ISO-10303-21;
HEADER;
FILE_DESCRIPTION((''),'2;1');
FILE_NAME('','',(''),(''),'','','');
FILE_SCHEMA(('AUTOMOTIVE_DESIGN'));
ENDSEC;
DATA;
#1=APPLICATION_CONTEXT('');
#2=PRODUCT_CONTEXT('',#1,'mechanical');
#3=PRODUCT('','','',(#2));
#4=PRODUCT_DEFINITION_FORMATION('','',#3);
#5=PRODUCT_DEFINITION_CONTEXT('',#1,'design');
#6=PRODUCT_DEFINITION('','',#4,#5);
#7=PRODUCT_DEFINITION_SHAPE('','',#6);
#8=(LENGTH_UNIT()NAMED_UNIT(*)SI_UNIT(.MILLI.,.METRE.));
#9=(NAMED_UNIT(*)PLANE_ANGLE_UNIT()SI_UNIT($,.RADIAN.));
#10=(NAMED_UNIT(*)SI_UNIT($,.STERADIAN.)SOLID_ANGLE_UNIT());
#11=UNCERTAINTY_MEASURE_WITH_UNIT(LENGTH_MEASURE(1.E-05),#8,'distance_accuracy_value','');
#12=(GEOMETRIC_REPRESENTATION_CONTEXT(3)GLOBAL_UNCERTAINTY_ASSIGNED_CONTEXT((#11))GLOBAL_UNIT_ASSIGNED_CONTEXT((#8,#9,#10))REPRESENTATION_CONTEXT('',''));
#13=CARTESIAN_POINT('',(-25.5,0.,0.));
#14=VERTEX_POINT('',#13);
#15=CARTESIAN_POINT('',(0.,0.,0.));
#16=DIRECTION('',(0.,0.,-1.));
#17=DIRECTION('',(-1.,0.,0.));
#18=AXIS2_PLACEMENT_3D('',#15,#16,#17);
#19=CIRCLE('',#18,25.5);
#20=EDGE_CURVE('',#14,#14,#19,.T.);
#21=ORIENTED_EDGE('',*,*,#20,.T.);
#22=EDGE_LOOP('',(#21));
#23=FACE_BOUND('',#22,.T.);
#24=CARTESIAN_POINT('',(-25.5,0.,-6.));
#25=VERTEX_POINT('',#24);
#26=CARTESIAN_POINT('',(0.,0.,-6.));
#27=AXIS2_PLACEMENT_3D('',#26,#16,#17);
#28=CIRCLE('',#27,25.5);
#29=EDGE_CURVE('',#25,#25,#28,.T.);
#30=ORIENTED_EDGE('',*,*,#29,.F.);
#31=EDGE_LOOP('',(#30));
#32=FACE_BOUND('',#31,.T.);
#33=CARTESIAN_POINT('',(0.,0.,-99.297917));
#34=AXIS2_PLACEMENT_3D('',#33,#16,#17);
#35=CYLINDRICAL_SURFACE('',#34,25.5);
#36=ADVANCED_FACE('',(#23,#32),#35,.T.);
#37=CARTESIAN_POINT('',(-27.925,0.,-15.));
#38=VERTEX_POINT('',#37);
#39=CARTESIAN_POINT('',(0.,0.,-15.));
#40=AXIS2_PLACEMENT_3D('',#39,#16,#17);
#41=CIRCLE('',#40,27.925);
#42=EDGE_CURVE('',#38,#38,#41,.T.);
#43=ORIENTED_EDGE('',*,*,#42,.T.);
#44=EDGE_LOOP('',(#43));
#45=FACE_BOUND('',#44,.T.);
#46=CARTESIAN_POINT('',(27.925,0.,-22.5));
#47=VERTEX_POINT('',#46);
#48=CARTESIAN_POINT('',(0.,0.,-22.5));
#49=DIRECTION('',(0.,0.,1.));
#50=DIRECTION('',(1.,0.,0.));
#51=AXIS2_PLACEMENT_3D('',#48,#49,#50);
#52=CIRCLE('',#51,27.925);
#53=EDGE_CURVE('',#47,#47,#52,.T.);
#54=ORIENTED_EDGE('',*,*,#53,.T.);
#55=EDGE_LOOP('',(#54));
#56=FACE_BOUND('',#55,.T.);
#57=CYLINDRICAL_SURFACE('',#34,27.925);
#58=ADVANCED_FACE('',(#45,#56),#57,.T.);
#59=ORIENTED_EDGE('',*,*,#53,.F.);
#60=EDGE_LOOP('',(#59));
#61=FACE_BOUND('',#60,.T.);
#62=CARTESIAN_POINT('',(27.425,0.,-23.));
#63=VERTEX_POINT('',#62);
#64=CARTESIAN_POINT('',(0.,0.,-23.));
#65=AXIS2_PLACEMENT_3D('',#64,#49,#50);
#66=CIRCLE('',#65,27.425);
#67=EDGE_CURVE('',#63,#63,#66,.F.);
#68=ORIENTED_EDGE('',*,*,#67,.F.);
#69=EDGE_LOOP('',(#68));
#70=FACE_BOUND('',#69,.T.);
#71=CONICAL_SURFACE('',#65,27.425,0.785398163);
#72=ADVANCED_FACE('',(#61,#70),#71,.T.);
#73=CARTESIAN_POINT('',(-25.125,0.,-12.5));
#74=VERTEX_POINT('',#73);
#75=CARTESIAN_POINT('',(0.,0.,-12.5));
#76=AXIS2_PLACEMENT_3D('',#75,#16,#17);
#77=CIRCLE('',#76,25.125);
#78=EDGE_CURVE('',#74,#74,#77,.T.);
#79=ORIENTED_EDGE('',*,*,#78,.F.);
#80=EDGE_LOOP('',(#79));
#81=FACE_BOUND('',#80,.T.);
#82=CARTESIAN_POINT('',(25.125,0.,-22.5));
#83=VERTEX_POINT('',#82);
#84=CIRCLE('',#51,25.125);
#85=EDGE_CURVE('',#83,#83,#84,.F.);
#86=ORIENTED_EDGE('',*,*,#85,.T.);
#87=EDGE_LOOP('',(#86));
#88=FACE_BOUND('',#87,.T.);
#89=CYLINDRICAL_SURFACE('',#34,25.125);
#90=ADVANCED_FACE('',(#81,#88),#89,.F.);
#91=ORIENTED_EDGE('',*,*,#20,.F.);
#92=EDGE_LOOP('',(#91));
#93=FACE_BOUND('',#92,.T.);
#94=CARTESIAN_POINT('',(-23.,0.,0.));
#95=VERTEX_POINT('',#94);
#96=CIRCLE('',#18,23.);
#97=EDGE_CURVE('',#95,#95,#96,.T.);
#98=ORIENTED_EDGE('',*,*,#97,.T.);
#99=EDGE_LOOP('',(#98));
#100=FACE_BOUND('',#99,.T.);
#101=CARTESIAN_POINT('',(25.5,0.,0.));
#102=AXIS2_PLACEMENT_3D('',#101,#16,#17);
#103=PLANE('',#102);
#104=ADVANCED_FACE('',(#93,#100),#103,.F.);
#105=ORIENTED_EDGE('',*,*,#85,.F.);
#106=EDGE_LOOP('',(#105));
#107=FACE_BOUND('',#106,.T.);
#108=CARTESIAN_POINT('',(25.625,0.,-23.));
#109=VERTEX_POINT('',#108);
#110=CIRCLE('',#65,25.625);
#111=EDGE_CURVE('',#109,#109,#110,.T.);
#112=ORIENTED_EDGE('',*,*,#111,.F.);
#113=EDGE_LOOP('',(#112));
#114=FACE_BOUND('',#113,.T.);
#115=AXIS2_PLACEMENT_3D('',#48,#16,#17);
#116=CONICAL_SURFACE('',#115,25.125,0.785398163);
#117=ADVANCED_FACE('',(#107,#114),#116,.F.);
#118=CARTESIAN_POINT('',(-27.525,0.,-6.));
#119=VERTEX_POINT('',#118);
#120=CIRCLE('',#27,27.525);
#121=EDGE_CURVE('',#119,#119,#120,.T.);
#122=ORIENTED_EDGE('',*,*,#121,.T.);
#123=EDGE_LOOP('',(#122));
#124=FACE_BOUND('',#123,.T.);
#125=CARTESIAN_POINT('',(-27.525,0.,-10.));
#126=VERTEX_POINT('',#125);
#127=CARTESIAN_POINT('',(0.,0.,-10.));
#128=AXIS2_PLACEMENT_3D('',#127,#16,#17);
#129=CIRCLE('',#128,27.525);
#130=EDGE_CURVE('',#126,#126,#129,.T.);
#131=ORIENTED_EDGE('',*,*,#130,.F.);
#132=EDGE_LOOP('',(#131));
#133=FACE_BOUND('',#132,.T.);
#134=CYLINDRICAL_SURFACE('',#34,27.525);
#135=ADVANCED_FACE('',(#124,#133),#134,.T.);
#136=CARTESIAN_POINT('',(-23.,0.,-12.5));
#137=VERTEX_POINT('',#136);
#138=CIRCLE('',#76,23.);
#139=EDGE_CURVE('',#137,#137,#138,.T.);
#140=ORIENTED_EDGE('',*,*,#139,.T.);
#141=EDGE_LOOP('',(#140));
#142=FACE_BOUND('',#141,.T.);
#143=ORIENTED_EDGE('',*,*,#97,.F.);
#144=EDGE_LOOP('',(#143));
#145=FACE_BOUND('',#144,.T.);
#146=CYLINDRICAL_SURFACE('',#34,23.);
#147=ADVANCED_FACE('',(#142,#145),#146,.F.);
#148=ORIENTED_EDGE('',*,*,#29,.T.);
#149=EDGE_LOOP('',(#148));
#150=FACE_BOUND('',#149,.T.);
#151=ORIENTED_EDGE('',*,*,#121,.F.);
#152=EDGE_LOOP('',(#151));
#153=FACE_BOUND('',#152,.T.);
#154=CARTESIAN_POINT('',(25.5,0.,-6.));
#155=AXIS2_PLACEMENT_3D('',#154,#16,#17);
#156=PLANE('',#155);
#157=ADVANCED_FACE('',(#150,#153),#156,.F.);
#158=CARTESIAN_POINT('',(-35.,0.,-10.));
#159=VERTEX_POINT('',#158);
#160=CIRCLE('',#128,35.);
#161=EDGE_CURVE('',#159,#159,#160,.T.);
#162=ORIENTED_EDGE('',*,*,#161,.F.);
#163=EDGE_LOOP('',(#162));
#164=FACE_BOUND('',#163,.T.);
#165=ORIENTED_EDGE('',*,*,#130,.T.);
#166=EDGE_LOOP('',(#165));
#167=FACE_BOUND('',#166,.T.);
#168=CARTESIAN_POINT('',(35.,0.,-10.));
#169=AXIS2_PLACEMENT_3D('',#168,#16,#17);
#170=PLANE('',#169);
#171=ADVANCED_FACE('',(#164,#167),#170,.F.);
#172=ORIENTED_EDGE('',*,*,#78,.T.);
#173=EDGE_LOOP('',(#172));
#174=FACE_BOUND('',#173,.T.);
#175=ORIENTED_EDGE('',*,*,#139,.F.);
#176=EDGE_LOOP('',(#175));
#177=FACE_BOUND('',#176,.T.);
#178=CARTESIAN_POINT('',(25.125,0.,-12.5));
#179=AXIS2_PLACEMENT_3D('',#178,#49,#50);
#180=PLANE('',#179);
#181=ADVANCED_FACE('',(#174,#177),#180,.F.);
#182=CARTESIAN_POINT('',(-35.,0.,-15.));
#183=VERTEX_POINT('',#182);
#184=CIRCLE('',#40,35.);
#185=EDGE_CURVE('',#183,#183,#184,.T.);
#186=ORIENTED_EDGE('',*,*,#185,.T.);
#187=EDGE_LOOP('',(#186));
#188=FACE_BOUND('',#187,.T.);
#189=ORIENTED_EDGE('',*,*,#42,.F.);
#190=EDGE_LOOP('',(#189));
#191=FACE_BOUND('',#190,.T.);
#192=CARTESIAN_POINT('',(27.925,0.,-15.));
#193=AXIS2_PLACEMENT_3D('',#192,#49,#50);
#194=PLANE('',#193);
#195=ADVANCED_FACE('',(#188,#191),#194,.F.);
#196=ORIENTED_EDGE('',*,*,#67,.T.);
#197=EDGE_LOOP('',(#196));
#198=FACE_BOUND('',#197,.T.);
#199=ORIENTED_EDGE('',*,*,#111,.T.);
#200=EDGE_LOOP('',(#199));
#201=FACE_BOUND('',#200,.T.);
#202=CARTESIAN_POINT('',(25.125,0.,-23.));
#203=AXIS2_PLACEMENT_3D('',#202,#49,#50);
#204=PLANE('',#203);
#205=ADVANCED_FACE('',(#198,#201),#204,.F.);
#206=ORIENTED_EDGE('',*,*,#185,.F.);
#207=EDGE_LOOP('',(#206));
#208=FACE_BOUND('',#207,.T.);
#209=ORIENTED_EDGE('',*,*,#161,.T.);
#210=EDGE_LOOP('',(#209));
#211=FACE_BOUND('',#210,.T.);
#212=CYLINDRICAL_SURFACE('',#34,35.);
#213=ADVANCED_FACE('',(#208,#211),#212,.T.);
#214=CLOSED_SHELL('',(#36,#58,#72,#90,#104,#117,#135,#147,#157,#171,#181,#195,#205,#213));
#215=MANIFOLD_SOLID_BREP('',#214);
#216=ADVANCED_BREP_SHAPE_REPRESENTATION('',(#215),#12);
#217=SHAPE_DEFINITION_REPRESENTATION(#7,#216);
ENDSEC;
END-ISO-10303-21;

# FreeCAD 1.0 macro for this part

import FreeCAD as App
import Part
import Sketcher

V = App.Vector
Q = App.Units.Quantity


def edges_at(feature, points):
    """Names of the edges that pass closest to the given points."""
    edges = feature.Shape.Edges
    near = lambda p: min(range(len(edges)), key=lambda i: edges[i].distToShape(Part.Vertex(*p))[0])
    return sorted({f"Edge{near(p) + 1}" for p in points})


def add_polygon(sketch, points):
    """Adds a closed chain of lines whose ends are joined by coincident constraints."""
    first, n = sketch.GeometryCount, len(points)
    for a, b in zip(points, points[1:] + points[:1]):
        sketch.addGeometry(Part.LineSegment(App.Vector(*a, 0), App.Vector(*b, 0)), False)
    for i in range(n):
        sketch.addConstraint(Sketcher.Constraint("Coincident", first + i, 2, first + (i + 1) % n, 1))

doc = App.newDocument("Part")
body = doc.addObject("PartDesign::Body", "Body")

sketch1 = body.newObject("Sketcher::SketchObject", "Sketch")
sketch1.AttachmentSupport = (doc.getObject("XZ_Plane"), [""])
sketch1.MapMode = "FlatFace"
add_polygon(sketch1, [(27.9, -23), (25.1, -23), (25.1, -12.5), (23, -12.5), (23, 0), (25.5, 0), (25.5, -6), (27.5, -6), (27.5, -10), (35, -10), (35, -15), (27.9, -15)])
sketch1.addConstraint(Sketcher.Constraint("Horizontal", 0))
sketch1.addConstraint(Sketcher.Constraint("Vertical", 1))
sketch1.addConstraint(Sketcher.Constraint("Horizontal", 2))
sketch1.addConstraint(Sketcher.Constraint("Vertical", 3))
sketch1.addConstraint(Sketcher.Constraint("Horizontal", 4))
sketch1.addConstraint(Sketcher.Constraint("Vertical", 5))
sketch1.addConstraint(Sketcher.Constraint("Horizontal", 6))
sketch1.addConstraint(Sketcher.Constraint("Vertical", 7))
sketch1.addConstraint(Sketcher.Constraint("Horizontal", 8))
sketch1.addConstraint(Sketcher.Constraint("Vertical", 9))
sketch1.addConstraint(Sketcher.Constraint("Horizontal", 10))
sketch1.addConstraint(Sketcher.Constraint("Vertical", 11))
sketch1.addConstraint(Sketcher.Constraint("PointOnObject", 3, 2, -1))
sketch1.addConstraint(Sketcher.Constraint("DistanceY", 5, 2, 5, 1, Q("6 mm")))
sketch1.addConstraint(Sketcher.Constraint("DistanceY", 7, 2, 7, 1, Q("4 mm")))
sketch1.addConstraint(Sketcher.Constraint("DistanceY", 9, 2, 9, 1, Q("5 mm")))
sketch1.addConstraint(Sketcher.Constraint("DistanceY", 11, 2, 11, 1, Q("8 mm")))
sketch1.addConstraint(Sketcher.Constraint("DistanceX", 0, 2, 0, 1, Q("2.8 mm")))
sketch1.addConstraint(Sketcher.Constraint("DistanceX", 4, 1, 4, 2, Q("2.5 mm")))
sketch1.addConstraint(Sketcher.Constraint("DistanceY", 1, 1, 1, 2, Q("10.5 mm")))
sketch1.addConstraint(Sketcher.Constraint("DistanceX", -1, 1, 2, 2, Q("23 mm")))
sketch1.addConstraint(Sketcher.Constraint("DistanceX", -1, 1, 8, 2, Q("35 mm")))
sketch1.addConstraint(Sketcher.Constraint("DistanceX", 1, 2, 6, 2, Q("2.4 mm")))
sketch1.addConstraint(Sketcher.Constraint("DistanceX", 2, 2, 2, 1, Q("2.125 mm")))
revolution = body.newObject("PartDesign::Revolution", "Revolution")
revolution.Profile = sketch1
revolution.ReferenceAxis = (sketch1, ["V_Axis"])
revolution.Angle = 360
doc.recompute()

chamfer = body.newObject("PartDesign::Chamfer", "Chamfer")
chamfer.Base = (revolution, edges_at(revolution, [(27.925, 0, -23), (25.125, 0, -23)]))
chamfer.Size = 0.5

doc.recompute()
